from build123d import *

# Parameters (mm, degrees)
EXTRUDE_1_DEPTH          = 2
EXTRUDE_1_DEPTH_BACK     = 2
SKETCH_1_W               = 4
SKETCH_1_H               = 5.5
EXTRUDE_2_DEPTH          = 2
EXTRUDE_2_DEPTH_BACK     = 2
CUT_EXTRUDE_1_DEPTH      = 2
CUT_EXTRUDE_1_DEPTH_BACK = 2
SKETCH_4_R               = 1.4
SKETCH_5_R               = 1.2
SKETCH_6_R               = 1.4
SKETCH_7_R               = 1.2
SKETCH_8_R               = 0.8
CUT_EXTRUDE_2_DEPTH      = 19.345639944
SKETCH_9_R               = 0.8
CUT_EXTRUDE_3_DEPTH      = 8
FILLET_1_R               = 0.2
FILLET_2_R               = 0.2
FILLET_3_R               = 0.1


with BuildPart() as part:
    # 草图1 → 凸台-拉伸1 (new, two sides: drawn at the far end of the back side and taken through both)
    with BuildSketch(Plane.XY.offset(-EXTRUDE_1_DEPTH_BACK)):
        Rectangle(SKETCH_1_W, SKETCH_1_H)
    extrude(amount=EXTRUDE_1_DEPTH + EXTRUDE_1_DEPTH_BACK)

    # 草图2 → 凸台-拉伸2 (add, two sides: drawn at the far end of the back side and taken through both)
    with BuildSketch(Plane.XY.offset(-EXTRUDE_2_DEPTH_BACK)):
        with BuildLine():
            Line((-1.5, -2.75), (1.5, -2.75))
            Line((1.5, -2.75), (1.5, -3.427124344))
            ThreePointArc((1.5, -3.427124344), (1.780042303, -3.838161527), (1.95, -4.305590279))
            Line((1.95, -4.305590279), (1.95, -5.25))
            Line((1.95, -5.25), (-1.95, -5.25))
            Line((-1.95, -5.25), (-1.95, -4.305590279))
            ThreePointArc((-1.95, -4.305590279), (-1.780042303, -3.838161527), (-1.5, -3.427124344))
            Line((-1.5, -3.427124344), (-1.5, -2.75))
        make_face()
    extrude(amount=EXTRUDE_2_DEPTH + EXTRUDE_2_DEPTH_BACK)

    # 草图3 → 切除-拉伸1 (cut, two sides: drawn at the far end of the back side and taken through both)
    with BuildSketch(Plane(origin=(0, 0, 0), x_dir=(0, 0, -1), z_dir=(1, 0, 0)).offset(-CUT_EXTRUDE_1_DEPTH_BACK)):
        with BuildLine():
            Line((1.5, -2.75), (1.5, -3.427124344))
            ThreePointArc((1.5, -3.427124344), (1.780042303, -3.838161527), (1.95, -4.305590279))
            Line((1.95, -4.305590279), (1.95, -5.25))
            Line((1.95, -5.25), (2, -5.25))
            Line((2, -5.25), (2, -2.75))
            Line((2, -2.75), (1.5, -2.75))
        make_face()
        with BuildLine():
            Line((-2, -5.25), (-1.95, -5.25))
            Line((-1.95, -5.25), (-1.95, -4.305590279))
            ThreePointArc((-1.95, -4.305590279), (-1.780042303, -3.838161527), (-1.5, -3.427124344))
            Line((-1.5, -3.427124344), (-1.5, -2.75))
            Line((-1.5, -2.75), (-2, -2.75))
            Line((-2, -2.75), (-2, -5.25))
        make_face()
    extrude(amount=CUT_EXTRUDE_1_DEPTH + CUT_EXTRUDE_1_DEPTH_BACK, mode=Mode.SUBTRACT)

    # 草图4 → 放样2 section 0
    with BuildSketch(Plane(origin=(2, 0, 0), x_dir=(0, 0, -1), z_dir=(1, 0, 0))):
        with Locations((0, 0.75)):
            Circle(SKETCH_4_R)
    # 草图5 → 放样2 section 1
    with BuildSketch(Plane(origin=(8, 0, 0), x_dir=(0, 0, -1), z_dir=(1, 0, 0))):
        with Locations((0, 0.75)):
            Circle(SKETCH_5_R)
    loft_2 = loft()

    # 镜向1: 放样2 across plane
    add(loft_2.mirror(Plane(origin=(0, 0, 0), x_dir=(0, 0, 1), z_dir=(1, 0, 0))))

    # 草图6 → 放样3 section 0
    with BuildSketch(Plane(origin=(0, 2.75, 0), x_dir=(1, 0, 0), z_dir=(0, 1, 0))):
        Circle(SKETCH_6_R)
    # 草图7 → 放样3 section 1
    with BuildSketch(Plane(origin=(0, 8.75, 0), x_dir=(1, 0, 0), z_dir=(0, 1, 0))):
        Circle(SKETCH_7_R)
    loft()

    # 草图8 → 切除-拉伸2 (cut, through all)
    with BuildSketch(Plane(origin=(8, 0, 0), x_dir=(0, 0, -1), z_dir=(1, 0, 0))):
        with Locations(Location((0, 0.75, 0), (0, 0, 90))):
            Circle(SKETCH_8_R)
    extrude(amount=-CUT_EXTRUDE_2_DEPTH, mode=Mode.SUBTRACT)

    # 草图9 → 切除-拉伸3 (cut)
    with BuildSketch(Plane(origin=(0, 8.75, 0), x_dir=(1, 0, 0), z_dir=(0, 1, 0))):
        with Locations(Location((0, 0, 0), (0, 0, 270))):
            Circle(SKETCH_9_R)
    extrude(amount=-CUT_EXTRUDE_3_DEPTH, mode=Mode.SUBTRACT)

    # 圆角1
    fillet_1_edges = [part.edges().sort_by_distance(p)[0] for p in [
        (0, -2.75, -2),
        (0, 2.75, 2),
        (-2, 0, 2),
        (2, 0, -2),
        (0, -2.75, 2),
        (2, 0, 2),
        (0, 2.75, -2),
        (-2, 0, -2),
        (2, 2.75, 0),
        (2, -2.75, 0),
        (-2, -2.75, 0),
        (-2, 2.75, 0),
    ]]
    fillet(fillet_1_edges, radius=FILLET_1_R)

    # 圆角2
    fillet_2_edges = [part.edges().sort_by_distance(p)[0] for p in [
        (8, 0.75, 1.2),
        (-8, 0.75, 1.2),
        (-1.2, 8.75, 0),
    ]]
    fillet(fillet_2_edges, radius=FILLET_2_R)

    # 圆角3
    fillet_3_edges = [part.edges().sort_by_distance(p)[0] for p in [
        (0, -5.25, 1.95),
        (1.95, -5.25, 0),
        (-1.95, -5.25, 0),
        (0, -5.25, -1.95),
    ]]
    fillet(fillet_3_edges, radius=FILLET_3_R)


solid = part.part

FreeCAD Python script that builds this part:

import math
import FreeCAD as App
import Part
import Sketcher


def edges_at(feature, points):
    """Names of the edges that pass closest to the given points."""
    edges = feature.Shape.Edges
    near = lambda p: min(range(len(edges)), key=lambda i: edges[i].distToShape(Part.Vertex(*p))[0])
    return sorted({f"Edge{near(p) + 1}" for p in points})

doc = App.newDocument("Part")
body = doc.addObject("PartDesign::Body", "Body")

sketch1 = body.newObject("Sketcher::SketchObject", "Sketch")
sketch1.AttachmentSupport = (doc.getObject("XY_Plane"), [""])
sketch1.MapMode = "FlatFace"
sketch1.addGeometry([
    Part.LineSegment(App.Vector(-2, 2.75, 0), App.Vector(-2, -2.75, 0)),
    Part.LineSegment(App.Vector(-2, -2.75, 0), App.Vector(2, -2.75, 0)),
    Part.LineSegment(App.Vector(2, -2.75, 0), App.Vector(2, 2.75, 0)),
    Part.LineSegment(App.Vector(2, 2.75, 0), App.Vector(-2, 2.75, 0)),
], False)
sketch1.addConstraint([
    Sketcher.Constraint("Coincident", 0, 2, 1, 1),
    Sketcher.Constraint("Coincident", 1, 2, 2, 1),
    Sketcher.Constraint("Coincident", 2, 2, 3, 1),
    Sketcher.Constraint("Coincident", 3, 2, 0, 1),
    Sketcher.Constraint("Vertical", 0),
    Sketcher.Constraint("Horizontal", 1),
    Sketcher.Constraint("Vertical", 2),
    Sketcher.Constraint("Horizontal", 3),
    Sketcher.Constraint("Symmetric", 0, 2, 2, 2, -1, 1),
    Sketcher.Constraint("DistanceX", 1, 1, 1, 2, 4.0),
    Sketcher.Constraint("DistanceY", 0, 2, 0, 1, 5.5),
])
pad1 = body.newObject("PartDesign::Pad", "Pad")
pad1.Profile = sketch1
pad1.Type = "TwoLengths"
pad1.Length = 2
pad1.Length2 = 2

sketch2 = body.newObject("Sketcher::SketchObject", "Sketch001")
sketch2.AttachmentSupport = (doc.getObject("XY_Plane"), [""])
sketch2.MapMode = "FlatFace"
sketch2.addGeometry([
    Part.LineSegment(App.Vector(1.5, -2.75, 0), App.Vector(-1.5, -2.75, 0)),
    Part.LineSegment(App.Vector(-1.5, -2.75, 0), App.Vector(-1.5, -3.427124, 0)),
    Part.ArcOfCircle(Part.Circle(App.Vector(0, -4.75, 0), App.Vector(0, 0, 1), 2), math.radians(138.590378), math.radians(167.161432)),
    Part.LineSegment(App.Vector(-1.95, -4.30559, 0), App.Vector(-1.95, -5.25, 0)),
    Part.LineSegment(App.Vector(-1.95, -5.25, 0), App.Vector(1.95, -5.25, 0)),
    Part.LineSegment(App.Vector(1.95, -5.25, 0), App.Vector(1.95, -4.30559, 0)),
    Part.ArcOfCircle(Part.Circle(App.Vector(0, -4.75, 0), App.Vector(0, 0, 1), 2), math.radians(12.838568), math.radians(41.409622)),
    Part.LineSegment(App.Vector(1.5, -3.427124, 0), App.Vector(1.5, -2.75, 0)),
], False)
sketch2.addConstraint([
    Sketcher.Constraint("Coincident", 0, 2, 1, 1),
    Sketcher.Constraint("Coincident", 1, 2, 2, 1),
    Sketcher.Constraint("Coincident", 2, 2, 3, 1),
    Sketcher.Constraint("Coincident", 3, 2, 4, 1),
    Sketcher.Constraint("Coincident", 4, 2, 5, 1),
    Sketcher.Constraint("Coincident", 5, 2, 6, 1),
    Sketcher.Constraint("Coincident", 6, 2, 7, 1),
    Sketcher.Constraint("Coincident", 7, 2, 0, 1),
    Sketcher.Constraint("Horizontal", 0),
    Sketcher.Constraint("Vertical", 1),
    Sketcher.Constraint("Vertical", 3),
    Sketcher.Constraint("Horizontal", 4),
    Sketcher.Constraint("Vertical", 5),
    Sketcher.Constraint("Vertical", 7),
    Sketcher.Constraint("Coincident", 6, 3, 2, 3),
    Sketcher.Constraint("Equal", 2, 6),
    Sketcher.Constraint("Symmetric", 2, 2, 5, 2, -2),
    Sketcher.Constraint("Horizontal", 1, 2, 6, 2),
    Sketcher.Constraint("Radius", 2, 2.0),
    Sketcher.Constraint("DistanceX", 0, 2, 0, 1, 3.0),
    Sketcher.Constraint("DistanceX", 4, 1, 4, 2, 3.9),
    Sketcher.Constraint("DistanceY", 2, 3, 0, 2, 2.0),
    Sketcher.Constraint("DistanceY", 3, 2, 2, 3, 0.5),
    Sketcher.Constraint("DistanceY", 2, 3, -1, 1, 4.75),
])
pad2 = body.newObject("PartDesign::Pad", "Pad001")
pad2.Profile = sketch2
pad2.Type = "TwoLengths"
pad2.Length = 2
pad2.Length2 = 2

sketch3 = body.newObject("Sketcher::SketchObject", "Sketch002")
sketch3.AttachmentSupport = (doc.getObject("YZ_Plane"), [""])
sketch3.MapMode = "FlatFace"
sketch3.addGeometry([
    Part.LineSegment(App.Vector(-2.75, -1.5, 0), App.Vector(-3.427124, -1.5, 0)),
    Part.ArcOfCircle(Part.Circle(App.Vector(-4.75, 0, 0), App.Vector(0, 0, 1), 2), math.radians(-77.161432), math.radians(-48.590378)),
    Part.LineSegment(App.Vector(-4.30559, -1.95, 0), App.Vector(-5.25, -1.95, 0)),
    Part.LineSegment(App.Vector(-5.25, -1.95, 0), App.Vector(-5.25, -2, 0)),
    Part.LineSegment(App.Vector(-5.25, -2, 0), App.Vector(-2.75, -2, 0)),
    Part.LineSegment(App.Vector(-2.75, -2, 0), App.Vector(-2.75, -1.5, 0)),
    Part.LineSegment(App.Vector(-5.25, 2, 0), App.Vector(-5.25, 1.95, 0)),
    Part.LineSegment(App.Vector(-5.25, 1.95, 0), App.Vector(-4.30559, 1.95, 0)),
    Part.ArcOfCircle(Part.Circle(App.Vector(-4.75, 0, 0), App.Vector(0, 0, 1), 2), math.radians(48.590378), math.radians(77.161432)),
    Part.LineSegment(App.Vector(-3.427124, 1.5, 0), App.Vector(-2.75, 1.5, 0)),
    Part.LineSegment(App.Vector(-2.75, 1.5, 0), App.Vector(-2.75, 2, 0)),
    Part.LineSegment(App.Vector(-2.75, 2, 0), App.Vector(-5.25, 2, 0)),
], False)
sketch3.addConstraint([
    Sketcher.Constraint("Coincident", 0, 2, 1, 2),
    Sketcher.Constraint("Coincident", 1, 1, 2, 1),
    Sketcher.Constraint("Coincident", 2, 2, 3, 1),
    Sketcher.Constraint("Coincident", 3, 2, 4, 1),
    Sketcher.Constraint("Coincident", 4, 2, 5, 1),
    Sketcher.Constraint("Coincident", 5, 2, 0, 1),
    Sketcher.Constraint("Coincident", 6, 2, 7, 1),
    Sketcher.Constraint("Coincident", 7, 2, 8, 2),
    Sketcher.Constraint("Coincident", 8, 1, 9, 1),
    Sketcher.Constraint("Coincident", 9, 2, 10, 1),
    Sketcher.Constraint("Coincident", 10, 2, 11, 1),
    Sketcher.Constraint("Coincident", 11, 2, 6, 1),
    Sketcher.Constraint("Horizontal", 0),
    Sketcher.Constraint("Horizontal", 2),
    Sketcher.Constraint("Vertical", 3),
    Sketcher.Constraint("Horizontal", 4),
    Sketcher.Constraint("Vertical", 5),
    Sketcher.Constraint("Vertical", 6),
    Sketcher.Constraint("Horizontal", 7),
    Sketcher.Constraint("Horizontal", 9),
    Sketcher.Constraint("Vertical", 10),
    Sketcher.Constraint("Horizontal", 11),
    Sketcher.Constraint("Coincident", 8, 3, 1, 3),
    Sketcher.Constraint("Equal", 1, 8),
    Sketcher.Constraint("Symmetric", 2, 2, 6, 2, -1),
    Sketcher.Constraint("Symmetric", 0, 2, 8, 1, -1),
    Sketcher.Constraint("Symmetric", 4, 2, 10, 2, -1),
    Sketcher.Constraint("Radius", 1, 2.0),
    Sketcher.Constraint("DistanceX", 4, 1, 4, 2, 2.5),
    Sketcher.Constraint("DistanceY", 5, 1, 5, 2, 0.5),
    Sketcher.Constraint("DistanceY", 3, 2, -1, 1, 2.0),
    Sketcher.Constraint("DistanceX", 1, 3, 4, 2, 2.0),
    Sketcher.Constraint("DistanceY", 3, 2, 3, 1, 0.05),
    Sketcher.Constraint("DistanceX", 1, 3, -1, 1, 4.75),
])
pocket1 = body.newObject("PartDesign::Pocket", "Pocket")
pocket1.Profile = sketch3
pocket1.Type = "ThroughAll"
pocket1.Midplane = True

sketch4 = body.newObject("Sketcher::SketchObject", "Sketch003")
sketch4.AttachmentSupport = (doc.getObject("YZ_Plane"), [""])
sketch4.MapMode = "FlatFace"
sketch4.AttachmentOffset = App.Placement(App.Vector(0, 0, 2), App.Rotation())
sketch4.addGeometry(Part.Circle(App.Vector(0.75, 0, 0), App.Vector(0, 0, 1), 1.4), False)
sketch4.addConstraint([
    Sketcher.Constraint("PointOnObject", 0, 3, -1),
    Sketcher.Constraint("Diameter", 0, 2.8),
    Sketcher.Constraint("DistanceX", -1, 1, 0, 3, 0.75),
])

sketch5 = body.newObject("Sketcher::SketchObject", "Sketch004")
sketch5.AttachmentSupport = (doc.getObject("YZ_Plane"), [""])
sketch5.MapMode = "FlatFace"
sketch5.AttachmentOffset = App.Placement(App.Vector(0, 0, 8), App.Rotation())
sketch5.addGeometry(Part.Circle(App.Vector(0.75, 0, 0), App.Vector(0, 0, 1), 1.2), False)
sketch5.addConstraint([
    Sketcher.Constraint("PointOnObject", 0, 3, -1),
    Sketcher.Constraint("Diameter", 0, 2.4),
    Sketcher.Constraint("DistanceX", -1, 1, 0, 3, 0.75),
])

additiveloft = body.newObject("PartDesign::AdditiveLoft", "AdditiveLoft")
additiveloft.Profile = sketch4
additiveloft.Sections = [sketch5]
doc.recompute()

mirrored = body.newObject("PartDesign::Mirrored", "Mirrored")
mirrored.Originals = [additiveloft]
mirrored.MirrorPlane = (doc.getObject("YZ_Plane"), [""])
body.Tip = mirrored

sketch6 = body.newObject("Sketcher::SketchObject", "Sketch005")
sketch6.AttachmentSupport = (doc.getObject("XZ_Plane"), [""])
sketch6.MapMode = "FlatFace"
sketch6.AttachmentOffset = App.Placement(App.Vector(0, 0, -2.75), App.Rotation())
sketch6.addGeometry(Part.Circle(App.Vector(0, 0, 0), App.Vector(0, 0, 1), 1.4), False)
sketch6.addConstraint([
    Sketcher.Constraint("Coincident", 0, 3, -1, 1),
    Sketcher.Constraint("Diameter", 0, 2.8),
])

sketch7 = body.newObject("Sketcher::SketchObject", "Sketch006")
sketch7.AttachmentSupport = (doc.getObject("XZ_Plane"), [""])
sketch7.MapMode = "FlatFace"
sketch7.AttachmentOffset = App.Placement(App.Vector(0, 0, -8.75), App.Rotation())
sketch7.addGeometry(Part.Circle(App.Vector(0, 0, 0), App.Vector(0, 0, 1), 1.2), False)
sketch7.addConstraint([
    Sketcher.Constraint("Coincident", 0, 3, -1, 1),
    Sketcher.Constraint("Diameter", 0, 2.4),
])

additiveloft2 = body.newObject("PartDesign::AdditiveLoft", "AdditiveLoft001")
additiveloft2.Profile = sketch6
additiveloft2.Sections = [sketch7]

sketch8 = body.newObject("Sketcher::SketchObject", "Sketch007")
sketch8.AttachmentSupport = (doc.getObject("YZ_Plane"), [""])
sketch8.MapMode = "FlatFace"
sketch8.AttachmentOffset = App.Placement(App.Vector(0, 0, 8), App.Rotation())
sketch8.addGeometry(Part.Circle(App.Vector(0.75, 0, 0), App.Vector(0, 0, 1), 0.8), False)
sketch8.addConstraint([
    Sketcher.Constraint("PointOnObject", 0, 3, -1),
    Sketcher.Constraint("Diameter", 0, 1.6),
    Sketcher.Constraint("DistanceX", -1, 1, 0, 3, 0.75),
])
pocket2 = body.newObject("PartDesign::Pocket", "Pocket001")
pocket2.Profile = sketch8
pocket2.Type = "ThroughAll"

sketch9 = body.newObject("Sketcher::SketchObject", "Sketch008")
sketch9.AttachmentSupport = (doc.getObject("XZ_Plane"), [""])
sketch9.MapMode = "FlatFace"
sketch9.AttachmentOffset = App.Placement(App.Vector(0, 0, -8.75), App.Rotation())
sketch9.addGeometry(Part.Circle(App.Vector(0, 0, 0), App.Vector(0, 0, 1), 0.8), False)
sketch9.addConstraint([
    Sketcher.Constraint("Coincident", 0, 3, -1, 1),
    Sketcher.Constraint("Diameter", 0, 1.6),
])
pocket3 = body.newObject("PartDesign::Pocket", "Pocket002")
pocket3.Profile = sketch9
pocket3.Length = 8
pocket3.Reversed = True
doc.recompute()

fillet = body.newObject("PartDesign::Fillet", "Fillet")
fillet.Base = (pocket3, edges_at(pocket3, [
    (0, -2.75, -2),
    (0, 2.75, 2),
    (-2, 0, 2),
    (2, 0, -2),
    (0, -2.75, 2),
    (2, 0, 2),
    (0, 2.75, -2),
    (-2, 0, -2),
    (2, 2.75, 0),
    (2, -2.75, 0),
    (-2, -2.75, 0),
    (-2, 2.75, 0),
]))
fillet.Radius = 0.2
doc.recompute()

fillet2 = body.newObject("PartDesign::Fillet", "Fillet001")
fillet2.Base = (fillet, edges_at(fillet, [(8, 0.75, 1.2), (-8, 0.75, 1.2), (-1.2, 8.75, 0)]))
fillet2.Radius = 0.2
doc.recompute()

fillet3 = body.newObject("PartDesign::Fillet", "Fillet002")
fillet3.Base = (fillet2, edges_at(fillet2, [
    (0, -5.25, 1.95),
    (1.95, -5.25, 0),
    (-1.95, -5.25, 0),
    (0, -5.25, -1.95),
]))
fillet3.Radius = 0.1

doc.recompute()
